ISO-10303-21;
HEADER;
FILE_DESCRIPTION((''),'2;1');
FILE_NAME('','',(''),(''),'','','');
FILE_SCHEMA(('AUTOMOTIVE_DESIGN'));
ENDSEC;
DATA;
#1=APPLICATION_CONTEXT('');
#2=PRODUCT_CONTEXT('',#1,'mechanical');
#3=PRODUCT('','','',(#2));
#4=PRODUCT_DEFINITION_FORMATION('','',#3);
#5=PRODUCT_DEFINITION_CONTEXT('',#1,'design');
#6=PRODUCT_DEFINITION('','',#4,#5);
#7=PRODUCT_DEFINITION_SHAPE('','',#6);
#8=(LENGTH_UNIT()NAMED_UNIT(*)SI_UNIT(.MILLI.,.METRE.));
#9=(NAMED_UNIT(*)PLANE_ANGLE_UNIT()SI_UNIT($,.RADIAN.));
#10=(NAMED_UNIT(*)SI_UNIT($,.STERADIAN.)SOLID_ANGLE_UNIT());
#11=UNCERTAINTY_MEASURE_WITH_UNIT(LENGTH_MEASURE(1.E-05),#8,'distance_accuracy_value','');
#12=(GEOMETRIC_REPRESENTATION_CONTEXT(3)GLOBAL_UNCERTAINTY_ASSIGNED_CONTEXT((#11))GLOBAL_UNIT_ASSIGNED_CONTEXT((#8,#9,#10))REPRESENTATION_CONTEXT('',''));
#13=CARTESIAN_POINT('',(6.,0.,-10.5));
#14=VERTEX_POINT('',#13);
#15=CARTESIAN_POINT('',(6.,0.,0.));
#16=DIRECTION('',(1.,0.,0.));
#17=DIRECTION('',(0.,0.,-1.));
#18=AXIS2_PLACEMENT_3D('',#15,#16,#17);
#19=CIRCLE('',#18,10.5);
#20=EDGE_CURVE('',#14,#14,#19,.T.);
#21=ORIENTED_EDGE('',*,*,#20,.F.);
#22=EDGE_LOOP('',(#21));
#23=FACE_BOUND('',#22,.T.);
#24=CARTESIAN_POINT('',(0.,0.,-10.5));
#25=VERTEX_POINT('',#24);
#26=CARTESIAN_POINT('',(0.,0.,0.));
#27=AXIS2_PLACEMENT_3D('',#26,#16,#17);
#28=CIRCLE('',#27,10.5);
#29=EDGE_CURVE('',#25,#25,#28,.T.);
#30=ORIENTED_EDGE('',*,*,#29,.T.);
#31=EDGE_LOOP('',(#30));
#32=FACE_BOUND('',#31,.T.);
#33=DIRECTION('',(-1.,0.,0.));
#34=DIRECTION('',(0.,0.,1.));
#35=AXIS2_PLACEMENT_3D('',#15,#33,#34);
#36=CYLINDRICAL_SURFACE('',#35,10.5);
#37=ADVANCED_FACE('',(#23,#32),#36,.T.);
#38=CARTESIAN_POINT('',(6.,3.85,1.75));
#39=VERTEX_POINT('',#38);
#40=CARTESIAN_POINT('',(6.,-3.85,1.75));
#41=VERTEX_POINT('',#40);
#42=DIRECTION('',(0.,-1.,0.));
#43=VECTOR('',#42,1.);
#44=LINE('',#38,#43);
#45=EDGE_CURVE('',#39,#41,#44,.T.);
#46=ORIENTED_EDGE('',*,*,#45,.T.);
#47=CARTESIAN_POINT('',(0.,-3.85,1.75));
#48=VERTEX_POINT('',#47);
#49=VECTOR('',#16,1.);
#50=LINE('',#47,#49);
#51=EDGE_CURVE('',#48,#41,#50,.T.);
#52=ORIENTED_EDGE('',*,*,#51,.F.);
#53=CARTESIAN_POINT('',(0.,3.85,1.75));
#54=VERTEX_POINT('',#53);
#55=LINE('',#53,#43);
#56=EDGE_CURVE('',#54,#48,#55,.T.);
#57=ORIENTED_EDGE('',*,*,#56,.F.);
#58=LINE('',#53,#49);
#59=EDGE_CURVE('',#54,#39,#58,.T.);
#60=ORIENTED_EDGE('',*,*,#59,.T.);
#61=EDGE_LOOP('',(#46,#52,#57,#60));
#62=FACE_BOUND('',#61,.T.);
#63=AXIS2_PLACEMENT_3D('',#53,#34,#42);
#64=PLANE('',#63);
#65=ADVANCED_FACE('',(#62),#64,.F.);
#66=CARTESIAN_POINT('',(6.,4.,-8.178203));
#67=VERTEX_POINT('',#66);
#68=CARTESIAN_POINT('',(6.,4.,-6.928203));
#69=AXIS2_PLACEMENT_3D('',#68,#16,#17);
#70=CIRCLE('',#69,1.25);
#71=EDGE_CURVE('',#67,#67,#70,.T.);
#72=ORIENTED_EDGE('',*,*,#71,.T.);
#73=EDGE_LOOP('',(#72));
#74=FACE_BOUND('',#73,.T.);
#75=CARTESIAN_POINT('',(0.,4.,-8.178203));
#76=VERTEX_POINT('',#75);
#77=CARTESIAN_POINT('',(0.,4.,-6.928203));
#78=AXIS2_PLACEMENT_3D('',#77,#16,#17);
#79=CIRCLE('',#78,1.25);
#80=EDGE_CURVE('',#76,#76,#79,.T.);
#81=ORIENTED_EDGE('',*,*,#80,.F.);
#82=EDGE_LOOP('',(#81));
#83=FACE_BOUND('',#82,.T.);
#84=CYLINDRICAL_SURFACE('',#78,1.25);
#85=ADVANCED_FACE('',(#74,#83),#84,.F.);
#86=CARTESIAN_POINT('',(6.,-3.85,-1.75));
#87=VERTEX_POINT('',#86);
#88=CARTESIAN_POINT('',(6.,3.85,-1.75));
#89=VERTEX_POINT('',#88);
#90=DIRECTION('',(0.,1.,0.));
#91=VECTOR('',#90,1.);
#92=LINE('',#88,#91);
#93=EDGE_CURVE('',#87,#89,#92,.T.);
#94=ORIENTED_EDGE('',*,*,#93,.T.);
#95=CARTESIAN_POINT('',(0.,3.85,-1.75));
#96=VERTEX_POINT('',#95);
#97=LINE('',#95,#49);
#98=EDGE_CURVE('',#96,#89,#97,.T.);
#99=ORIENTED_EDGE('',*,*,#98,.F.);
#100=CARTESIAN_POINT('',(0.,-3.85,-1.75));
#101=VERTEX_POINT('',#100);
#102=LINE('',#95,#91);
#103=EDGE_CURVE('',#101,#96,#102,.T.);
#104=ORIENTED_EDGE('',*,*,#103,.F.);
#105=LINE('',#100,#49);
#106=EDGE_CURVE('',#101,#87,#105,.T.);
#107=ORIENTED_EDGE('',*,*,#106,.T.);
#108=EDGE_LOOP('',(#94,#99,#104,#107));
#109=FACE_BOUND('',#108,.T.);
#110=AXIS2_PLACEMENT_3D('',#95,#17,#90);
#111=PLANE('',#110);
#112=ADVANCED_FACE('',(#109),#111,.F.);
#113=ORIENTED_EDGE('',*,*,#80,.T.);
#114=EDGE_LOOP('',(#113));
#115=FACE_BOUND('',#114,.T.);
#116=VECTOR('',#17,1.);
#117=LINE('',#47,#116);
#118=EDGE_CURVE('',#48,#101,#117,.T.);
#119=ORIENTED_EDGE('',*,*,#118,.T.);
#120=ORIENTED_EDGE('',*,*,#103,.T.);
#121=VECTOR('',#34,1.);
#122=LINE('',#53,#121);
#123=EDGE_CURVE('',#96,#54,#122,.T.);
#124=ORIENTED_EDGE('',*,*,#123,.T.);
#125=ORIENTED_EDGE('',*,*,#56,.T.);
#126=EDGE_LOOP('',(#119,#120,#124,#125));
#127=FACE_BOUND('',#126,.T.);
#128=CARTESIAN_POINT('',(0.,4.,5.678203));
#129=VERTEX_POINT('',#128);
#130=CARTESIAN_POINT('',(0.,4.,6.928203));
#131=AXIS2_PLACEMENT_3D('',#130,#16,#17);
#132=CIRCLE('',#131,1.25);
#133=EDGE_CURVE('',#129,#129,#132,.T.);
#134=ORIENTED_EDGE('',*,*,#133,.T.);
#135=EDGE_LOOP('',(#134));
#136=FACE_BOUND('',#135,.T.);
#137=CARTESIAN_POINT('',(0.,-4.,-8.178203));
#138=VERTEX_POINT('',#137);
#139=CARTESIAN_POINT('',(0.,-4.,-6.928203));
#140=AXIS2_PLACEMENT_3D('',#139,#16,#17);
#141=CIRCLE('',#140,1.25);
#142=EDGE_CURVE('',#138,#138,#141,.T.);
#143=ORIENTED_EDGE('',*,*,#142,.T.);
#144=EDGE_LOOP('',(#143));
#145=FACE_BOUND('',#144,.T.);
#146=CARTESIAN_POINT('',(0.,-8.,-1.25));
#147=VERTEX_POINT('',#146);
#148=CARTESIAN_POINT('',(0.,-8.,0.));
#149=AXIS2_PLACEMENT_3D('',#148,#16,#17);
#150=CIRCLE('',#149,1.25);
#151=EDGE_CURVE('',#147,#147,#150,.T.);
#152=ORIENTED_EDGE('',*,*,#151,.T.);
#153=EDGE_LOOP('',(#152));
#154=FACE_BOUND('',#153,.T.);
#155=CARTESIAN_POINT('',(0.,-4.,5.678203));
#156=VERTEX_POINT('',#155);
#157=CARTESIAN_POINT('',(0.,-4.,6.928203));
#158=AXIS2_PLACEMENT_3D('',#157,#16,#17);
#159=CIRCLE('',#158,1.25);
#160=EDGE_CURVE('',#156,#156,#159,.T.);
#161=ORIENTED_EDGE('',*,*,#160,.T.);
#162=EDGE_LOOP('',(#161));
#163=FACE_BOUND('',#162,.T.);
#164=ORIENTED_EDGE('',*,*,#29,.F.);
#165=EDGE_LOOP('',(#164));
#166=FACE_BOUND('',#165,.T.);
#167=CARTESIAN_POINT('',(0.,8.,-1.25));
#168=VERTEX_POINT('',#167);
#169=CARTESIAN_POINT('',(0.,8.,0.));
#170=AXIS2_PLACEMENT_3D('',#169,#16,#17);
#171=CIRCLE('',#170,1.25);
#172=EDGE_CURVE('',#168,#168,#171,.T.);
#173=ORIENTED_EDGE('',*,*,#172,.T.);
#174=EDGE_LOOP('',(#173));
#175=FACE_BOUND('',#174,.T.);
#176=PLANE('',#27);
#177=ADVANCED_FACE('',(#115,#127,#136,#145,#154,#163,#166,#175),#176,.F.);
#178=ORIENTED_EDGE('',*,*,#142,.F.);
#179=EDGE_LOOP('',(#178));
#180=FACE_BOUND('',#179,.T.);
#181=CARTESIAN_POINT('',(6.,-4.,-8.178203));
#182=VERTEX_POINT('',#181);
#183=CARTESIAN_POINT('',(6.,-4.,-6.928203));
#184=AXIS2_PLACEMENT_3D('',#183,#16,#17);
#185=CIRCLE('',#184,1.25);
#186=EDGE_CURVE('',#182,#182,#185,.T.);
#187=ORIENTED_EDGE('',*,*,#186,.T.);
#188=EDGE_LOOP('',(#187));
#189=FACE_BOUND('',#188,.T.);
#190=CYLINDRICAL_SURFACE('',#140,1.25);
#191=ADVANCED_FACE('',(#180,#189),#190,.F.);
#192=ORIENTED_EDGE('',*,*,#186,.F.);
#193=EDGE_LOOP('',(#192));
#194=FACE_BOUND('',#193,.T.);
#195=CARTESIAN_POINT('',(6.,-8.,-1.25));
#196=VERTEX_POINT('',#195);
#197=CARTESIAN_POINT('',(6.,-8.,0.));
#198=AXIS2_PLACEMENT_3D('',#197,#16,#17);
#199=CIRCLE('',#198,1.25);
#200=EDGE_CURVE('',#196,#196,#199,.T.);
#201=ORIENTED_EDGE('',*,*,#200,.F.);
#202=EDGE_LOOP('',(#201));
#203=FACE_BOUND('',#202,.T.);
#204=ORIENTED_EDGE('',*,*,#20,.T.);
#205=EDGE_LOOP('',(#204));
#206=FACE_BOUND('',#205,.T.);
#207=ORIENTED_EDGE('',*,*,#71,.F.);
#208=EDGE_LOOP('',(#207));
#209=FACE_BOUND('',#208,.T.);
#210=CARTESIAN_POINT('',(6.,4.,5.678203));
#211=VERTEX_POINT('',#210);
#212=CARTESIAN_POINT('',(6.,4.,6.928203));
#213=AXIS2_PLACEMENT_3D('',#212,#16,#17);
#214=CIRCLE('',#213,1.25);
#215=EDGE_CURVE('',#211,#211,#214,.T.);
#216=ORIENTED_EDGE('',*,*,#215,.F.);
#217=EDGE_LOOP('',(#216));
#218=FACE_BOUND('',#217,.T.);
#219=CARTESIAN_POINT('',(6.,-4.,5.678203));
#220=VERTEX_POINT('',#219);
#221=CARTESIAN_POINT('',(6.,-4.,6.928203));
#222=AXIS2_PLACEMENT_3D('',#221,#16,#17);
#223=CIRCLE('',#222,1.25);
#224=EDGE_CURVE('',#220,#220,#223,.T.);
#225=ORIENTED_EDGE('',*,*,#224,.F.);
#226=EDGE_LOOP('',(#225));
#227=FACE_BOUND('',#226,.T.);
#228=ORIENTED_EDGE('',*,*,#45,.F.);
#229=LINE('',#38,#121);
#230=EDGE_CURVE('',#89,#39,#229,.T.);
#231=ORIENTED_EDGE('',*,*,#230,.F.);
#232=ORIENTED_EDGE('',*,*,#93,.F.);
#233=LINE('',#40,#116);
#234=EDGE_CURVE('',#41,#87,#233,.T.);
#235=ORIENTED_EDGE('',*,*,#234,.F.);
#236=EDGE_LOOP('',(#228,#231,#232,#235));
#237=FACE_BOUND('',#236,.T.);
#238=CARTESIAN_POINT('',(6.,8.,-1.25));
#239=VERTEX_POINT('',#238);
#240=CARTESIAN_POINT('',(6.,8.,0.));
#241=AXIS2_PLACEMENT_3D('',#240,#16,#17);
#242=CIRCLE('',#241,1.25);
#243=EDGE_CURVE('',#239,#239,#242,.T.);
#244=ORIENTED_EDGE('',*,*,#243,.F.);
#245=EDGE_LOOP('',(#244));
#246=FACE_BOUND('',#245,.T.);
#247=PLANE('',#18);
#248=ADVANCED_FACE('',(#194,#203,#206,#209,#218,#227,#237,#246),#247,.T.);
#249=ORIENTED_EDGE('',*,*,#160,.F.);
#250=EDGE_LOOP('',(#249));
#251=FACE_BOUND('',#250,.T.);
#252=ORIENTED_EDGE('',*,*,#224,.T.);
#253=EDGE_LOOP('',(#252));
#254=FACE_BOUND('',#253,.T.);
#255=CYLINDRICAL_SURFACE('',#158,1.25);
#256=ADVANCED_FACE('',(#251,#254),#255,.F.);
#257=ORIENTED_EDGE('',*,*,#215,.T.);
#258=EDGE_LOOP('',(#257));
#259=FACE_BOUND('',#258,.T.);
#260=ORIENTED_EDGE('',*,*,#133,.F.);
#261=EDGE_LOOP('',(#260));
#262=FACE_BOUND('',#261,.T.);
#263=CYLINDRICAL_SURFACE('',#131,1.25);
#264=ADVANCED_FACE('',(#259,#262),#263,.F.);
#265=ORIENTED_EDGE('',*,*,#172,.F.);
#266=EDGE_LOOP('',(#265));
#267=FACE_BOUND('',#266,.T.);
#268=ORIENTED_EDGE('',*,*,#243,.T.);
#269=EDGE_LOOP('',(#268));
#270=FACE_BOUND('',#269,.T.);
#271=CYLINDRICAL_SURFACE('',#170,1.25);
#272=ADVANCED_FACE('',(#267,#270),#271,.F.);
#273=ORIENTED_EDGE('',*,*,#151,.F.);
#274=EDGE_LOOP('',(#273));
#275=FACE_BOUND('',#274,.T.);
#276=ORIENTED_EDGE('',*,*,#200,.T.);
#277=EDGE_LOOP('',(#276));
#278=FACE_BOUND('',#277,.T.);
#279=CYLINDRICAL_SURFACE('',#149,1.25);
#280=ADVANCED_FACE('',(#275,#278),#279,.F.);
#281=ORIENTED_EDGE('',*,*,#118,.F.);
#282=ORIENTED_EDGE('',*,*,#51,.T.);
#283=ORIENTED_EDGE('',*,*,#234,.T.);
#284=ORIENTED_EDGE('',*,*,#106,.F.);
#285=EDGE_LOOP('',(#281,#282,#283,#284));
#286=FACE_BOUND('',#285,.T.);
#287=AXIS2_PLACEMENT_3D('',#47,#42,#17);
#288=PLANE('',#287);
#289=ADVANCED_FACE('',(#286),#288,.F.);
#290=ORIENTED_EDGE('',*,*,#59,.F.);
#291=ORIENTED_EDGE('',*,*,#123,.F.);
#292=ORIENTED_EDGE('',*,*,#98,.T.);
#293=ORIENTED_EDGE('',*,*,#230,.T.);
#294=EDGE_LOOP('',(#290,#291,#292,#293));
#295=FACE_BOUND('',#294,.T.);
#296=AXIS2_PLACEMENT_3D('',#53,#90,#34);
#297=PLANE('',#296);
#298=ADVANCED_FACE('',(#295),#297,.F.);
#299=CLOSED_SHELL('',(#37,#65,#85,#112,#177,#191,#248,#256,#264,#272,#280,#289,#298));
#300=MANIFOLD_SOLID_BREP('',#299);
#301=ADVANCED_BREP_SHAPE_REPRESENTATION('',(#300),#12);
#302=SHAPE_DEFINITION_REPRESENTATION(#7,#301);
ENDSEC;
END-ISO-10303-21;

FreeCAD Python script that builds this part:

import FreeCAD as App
import Part
import Sketcher

V = App.Vector


def add_polygon(sketch, points):
    """Adds a closed chain of lines whose ends are joined by coincident constraints."""
    first, n = sketch.GeometryCount, len(points)
    for a, b in zip(points, points[1:] + points[:1]):
        sketch.addGeometry(Part.LineSegment(App.Vector(*a, 0), App.Vector(*b, 0)), False)
    for i in range(n):
        sketch.addConstraint(Sketcher.Constraint("Coincident", first + i, 2, first + (i + 1) % n, 1))

doc = App.newDocument("Part")
body = doc.addObject("PartDesign::Body", "Body")

# Sketch on YZ plane
sketch1 = body.newObject("Sketcher::SketchObject", "Sketch")
sketch1.AttachmentSupport = (doc.getObject("YZ_Plane"), [""])
sketch1.MapMode = "FlatFace"
sketch1.addGeometry(Part.Circle(V(0, 0, 0), V(0, 0, 1), 10), False)
sketch1.addConstraint(Sketcher.Constraint("Coincident", 0, 3, -1, 1))
sketch1.addConstraint(Sketcher.Constraint("Diameter", 0, 21.0))
pad1 = body.newObject("PartDesign::Pad", "Pad")
pad1.Profile = sketch1
pad1.Length = 6

# Sketch on YZ plane
sketch2 = body.newObject("Sketcher::SketchObject", "Sketch001")
sketch2.AttachmentSupport = (doc.getObject("YZ_Plane"), [""])
sketch2.MapMode = "FlatFace"
sketch2.AttachmentOffset = App.Placement(V(0, 0, 6), App.Rotation())
sketch2.addGeometry(Part.Circle(V(8, 0, 0), V(0, 0, 1), 1.2), False)
sketch2.addGeometry(Part.Circle(V(4, -6.9, 0), V(0, 0, 1), 1.2), False)
sketch2.addGeometry(Part.Circle(V(-4, -6.9, 0), V(0, 0, 1), 1.2), False)
sketch2.addGeometry(Part.Circle(V(-8, 0, 0), V(0, 0, 1), 1.2), False)
sketch2.addGeometry(Part.Circle(V(-4, 6.9, 0), V(0, 0, 1), 1.2), False)
sketch2.addGeometry(Part.Circle(V(4, 6.9, 0), V(0, 0, 1), 1.2), False)
sketch2.addConstraint(Sketcher.Constraint("Equal", 0, 1))
sketch2.addConstraint(Sketcher.Constraint("Equal", 1, 2))
sketch2.addConstraint(Sketcher.Constraint("Equal", 2, 3))
sketch2.addConstraint(Sketcher.Constraint("Equal", 3, 4))
sketch2.addConstraint(Sketcher.Constraint("Equal", 4, 5))
sketch2.addConstraint(Sketcher.Constraint("Symmetric", 0, 3, 3, 3, -1, 1))
sketch2.addConstraint(Sketcher.Constraint("Symmetric", 1, 3, 4, 3, -1, 1))
sketch2.addConstraint(Sketcher.Constraint("Symmetric", 2, 3, 5, 3, -1, 1))
sketch2.addConstraint(Sketcher.Constraint("Symmetric", 1, 3, 2, 3, -2))
sketch2.addConstraint(Sketcher.Constraint("PointOnObject", 0, 3, -1))
sketch2.addConstraint(Sketcher.Constraint("Diameter", 0, 2.5))
sketch2.addConstraint(Sketcher.Constraint("DistanceX", -1, 1, 0, 3, 8.0))
sketch2.addConstraint(Sketcher.Constraint("DistanceX", -1, 1, 1, 3, 4.0))
sketch2.addConstraint(Sketcher.Constraint("DistanceY", 1, 3, -1, 1, 6.928203))
pocket1 = body.newObject("PartDesign::Pocket", "Pocket")
pocket1.Profile = sketch2
pocket1.Type = "ThroughAll"

# Sketch on YZ plane
sketch3 = body.newObject("Sketcher::SketchObject", "Sketch002")
sketch3.AttachmentSupport = (doc.getObject("YZ_Plane"), [""])
sketch3.MapMode = "FlatFace"
sketch3.AttachmentOffset = App.Placement(V(0, 0, 6), App.Rotation())
add_polygon(sketch3, [(3.9, 1.8), (-3.9, 1.8), (-3.9, -1.8), (3.9, -1.8)])  # lines 0-3
sketch3.addConstraint(Sketcher.Constraint("Horizontal", 0))
sketch3.addConstraint(Sketcher.Constraint("Vertical", 1))
sketch3.addConstraint(Sketcher.Constraint("Horizontal", 2))
sketch3.addConstraint(Sketcher.Constraint("Vertical", 3))
sketch3.addConstraint(Sketcher.Constraint("Symmetric", 0, 2, 2, 2, -1, 1))
sketch3.addConstraint(Sketcher.Constraint("DistanceX", 0, 2, 0, 1, 7.7))
sketch3.addConstraint(Sketcher.Constraint("DistanceY", 1, 2, 1, 1, 3.5))
pocket2 = body.newObject("PartDesign::Pocket", "Pocket001")
pocket2.Profile = sketch3
pocket2.Length = 6

doc.recompute()
